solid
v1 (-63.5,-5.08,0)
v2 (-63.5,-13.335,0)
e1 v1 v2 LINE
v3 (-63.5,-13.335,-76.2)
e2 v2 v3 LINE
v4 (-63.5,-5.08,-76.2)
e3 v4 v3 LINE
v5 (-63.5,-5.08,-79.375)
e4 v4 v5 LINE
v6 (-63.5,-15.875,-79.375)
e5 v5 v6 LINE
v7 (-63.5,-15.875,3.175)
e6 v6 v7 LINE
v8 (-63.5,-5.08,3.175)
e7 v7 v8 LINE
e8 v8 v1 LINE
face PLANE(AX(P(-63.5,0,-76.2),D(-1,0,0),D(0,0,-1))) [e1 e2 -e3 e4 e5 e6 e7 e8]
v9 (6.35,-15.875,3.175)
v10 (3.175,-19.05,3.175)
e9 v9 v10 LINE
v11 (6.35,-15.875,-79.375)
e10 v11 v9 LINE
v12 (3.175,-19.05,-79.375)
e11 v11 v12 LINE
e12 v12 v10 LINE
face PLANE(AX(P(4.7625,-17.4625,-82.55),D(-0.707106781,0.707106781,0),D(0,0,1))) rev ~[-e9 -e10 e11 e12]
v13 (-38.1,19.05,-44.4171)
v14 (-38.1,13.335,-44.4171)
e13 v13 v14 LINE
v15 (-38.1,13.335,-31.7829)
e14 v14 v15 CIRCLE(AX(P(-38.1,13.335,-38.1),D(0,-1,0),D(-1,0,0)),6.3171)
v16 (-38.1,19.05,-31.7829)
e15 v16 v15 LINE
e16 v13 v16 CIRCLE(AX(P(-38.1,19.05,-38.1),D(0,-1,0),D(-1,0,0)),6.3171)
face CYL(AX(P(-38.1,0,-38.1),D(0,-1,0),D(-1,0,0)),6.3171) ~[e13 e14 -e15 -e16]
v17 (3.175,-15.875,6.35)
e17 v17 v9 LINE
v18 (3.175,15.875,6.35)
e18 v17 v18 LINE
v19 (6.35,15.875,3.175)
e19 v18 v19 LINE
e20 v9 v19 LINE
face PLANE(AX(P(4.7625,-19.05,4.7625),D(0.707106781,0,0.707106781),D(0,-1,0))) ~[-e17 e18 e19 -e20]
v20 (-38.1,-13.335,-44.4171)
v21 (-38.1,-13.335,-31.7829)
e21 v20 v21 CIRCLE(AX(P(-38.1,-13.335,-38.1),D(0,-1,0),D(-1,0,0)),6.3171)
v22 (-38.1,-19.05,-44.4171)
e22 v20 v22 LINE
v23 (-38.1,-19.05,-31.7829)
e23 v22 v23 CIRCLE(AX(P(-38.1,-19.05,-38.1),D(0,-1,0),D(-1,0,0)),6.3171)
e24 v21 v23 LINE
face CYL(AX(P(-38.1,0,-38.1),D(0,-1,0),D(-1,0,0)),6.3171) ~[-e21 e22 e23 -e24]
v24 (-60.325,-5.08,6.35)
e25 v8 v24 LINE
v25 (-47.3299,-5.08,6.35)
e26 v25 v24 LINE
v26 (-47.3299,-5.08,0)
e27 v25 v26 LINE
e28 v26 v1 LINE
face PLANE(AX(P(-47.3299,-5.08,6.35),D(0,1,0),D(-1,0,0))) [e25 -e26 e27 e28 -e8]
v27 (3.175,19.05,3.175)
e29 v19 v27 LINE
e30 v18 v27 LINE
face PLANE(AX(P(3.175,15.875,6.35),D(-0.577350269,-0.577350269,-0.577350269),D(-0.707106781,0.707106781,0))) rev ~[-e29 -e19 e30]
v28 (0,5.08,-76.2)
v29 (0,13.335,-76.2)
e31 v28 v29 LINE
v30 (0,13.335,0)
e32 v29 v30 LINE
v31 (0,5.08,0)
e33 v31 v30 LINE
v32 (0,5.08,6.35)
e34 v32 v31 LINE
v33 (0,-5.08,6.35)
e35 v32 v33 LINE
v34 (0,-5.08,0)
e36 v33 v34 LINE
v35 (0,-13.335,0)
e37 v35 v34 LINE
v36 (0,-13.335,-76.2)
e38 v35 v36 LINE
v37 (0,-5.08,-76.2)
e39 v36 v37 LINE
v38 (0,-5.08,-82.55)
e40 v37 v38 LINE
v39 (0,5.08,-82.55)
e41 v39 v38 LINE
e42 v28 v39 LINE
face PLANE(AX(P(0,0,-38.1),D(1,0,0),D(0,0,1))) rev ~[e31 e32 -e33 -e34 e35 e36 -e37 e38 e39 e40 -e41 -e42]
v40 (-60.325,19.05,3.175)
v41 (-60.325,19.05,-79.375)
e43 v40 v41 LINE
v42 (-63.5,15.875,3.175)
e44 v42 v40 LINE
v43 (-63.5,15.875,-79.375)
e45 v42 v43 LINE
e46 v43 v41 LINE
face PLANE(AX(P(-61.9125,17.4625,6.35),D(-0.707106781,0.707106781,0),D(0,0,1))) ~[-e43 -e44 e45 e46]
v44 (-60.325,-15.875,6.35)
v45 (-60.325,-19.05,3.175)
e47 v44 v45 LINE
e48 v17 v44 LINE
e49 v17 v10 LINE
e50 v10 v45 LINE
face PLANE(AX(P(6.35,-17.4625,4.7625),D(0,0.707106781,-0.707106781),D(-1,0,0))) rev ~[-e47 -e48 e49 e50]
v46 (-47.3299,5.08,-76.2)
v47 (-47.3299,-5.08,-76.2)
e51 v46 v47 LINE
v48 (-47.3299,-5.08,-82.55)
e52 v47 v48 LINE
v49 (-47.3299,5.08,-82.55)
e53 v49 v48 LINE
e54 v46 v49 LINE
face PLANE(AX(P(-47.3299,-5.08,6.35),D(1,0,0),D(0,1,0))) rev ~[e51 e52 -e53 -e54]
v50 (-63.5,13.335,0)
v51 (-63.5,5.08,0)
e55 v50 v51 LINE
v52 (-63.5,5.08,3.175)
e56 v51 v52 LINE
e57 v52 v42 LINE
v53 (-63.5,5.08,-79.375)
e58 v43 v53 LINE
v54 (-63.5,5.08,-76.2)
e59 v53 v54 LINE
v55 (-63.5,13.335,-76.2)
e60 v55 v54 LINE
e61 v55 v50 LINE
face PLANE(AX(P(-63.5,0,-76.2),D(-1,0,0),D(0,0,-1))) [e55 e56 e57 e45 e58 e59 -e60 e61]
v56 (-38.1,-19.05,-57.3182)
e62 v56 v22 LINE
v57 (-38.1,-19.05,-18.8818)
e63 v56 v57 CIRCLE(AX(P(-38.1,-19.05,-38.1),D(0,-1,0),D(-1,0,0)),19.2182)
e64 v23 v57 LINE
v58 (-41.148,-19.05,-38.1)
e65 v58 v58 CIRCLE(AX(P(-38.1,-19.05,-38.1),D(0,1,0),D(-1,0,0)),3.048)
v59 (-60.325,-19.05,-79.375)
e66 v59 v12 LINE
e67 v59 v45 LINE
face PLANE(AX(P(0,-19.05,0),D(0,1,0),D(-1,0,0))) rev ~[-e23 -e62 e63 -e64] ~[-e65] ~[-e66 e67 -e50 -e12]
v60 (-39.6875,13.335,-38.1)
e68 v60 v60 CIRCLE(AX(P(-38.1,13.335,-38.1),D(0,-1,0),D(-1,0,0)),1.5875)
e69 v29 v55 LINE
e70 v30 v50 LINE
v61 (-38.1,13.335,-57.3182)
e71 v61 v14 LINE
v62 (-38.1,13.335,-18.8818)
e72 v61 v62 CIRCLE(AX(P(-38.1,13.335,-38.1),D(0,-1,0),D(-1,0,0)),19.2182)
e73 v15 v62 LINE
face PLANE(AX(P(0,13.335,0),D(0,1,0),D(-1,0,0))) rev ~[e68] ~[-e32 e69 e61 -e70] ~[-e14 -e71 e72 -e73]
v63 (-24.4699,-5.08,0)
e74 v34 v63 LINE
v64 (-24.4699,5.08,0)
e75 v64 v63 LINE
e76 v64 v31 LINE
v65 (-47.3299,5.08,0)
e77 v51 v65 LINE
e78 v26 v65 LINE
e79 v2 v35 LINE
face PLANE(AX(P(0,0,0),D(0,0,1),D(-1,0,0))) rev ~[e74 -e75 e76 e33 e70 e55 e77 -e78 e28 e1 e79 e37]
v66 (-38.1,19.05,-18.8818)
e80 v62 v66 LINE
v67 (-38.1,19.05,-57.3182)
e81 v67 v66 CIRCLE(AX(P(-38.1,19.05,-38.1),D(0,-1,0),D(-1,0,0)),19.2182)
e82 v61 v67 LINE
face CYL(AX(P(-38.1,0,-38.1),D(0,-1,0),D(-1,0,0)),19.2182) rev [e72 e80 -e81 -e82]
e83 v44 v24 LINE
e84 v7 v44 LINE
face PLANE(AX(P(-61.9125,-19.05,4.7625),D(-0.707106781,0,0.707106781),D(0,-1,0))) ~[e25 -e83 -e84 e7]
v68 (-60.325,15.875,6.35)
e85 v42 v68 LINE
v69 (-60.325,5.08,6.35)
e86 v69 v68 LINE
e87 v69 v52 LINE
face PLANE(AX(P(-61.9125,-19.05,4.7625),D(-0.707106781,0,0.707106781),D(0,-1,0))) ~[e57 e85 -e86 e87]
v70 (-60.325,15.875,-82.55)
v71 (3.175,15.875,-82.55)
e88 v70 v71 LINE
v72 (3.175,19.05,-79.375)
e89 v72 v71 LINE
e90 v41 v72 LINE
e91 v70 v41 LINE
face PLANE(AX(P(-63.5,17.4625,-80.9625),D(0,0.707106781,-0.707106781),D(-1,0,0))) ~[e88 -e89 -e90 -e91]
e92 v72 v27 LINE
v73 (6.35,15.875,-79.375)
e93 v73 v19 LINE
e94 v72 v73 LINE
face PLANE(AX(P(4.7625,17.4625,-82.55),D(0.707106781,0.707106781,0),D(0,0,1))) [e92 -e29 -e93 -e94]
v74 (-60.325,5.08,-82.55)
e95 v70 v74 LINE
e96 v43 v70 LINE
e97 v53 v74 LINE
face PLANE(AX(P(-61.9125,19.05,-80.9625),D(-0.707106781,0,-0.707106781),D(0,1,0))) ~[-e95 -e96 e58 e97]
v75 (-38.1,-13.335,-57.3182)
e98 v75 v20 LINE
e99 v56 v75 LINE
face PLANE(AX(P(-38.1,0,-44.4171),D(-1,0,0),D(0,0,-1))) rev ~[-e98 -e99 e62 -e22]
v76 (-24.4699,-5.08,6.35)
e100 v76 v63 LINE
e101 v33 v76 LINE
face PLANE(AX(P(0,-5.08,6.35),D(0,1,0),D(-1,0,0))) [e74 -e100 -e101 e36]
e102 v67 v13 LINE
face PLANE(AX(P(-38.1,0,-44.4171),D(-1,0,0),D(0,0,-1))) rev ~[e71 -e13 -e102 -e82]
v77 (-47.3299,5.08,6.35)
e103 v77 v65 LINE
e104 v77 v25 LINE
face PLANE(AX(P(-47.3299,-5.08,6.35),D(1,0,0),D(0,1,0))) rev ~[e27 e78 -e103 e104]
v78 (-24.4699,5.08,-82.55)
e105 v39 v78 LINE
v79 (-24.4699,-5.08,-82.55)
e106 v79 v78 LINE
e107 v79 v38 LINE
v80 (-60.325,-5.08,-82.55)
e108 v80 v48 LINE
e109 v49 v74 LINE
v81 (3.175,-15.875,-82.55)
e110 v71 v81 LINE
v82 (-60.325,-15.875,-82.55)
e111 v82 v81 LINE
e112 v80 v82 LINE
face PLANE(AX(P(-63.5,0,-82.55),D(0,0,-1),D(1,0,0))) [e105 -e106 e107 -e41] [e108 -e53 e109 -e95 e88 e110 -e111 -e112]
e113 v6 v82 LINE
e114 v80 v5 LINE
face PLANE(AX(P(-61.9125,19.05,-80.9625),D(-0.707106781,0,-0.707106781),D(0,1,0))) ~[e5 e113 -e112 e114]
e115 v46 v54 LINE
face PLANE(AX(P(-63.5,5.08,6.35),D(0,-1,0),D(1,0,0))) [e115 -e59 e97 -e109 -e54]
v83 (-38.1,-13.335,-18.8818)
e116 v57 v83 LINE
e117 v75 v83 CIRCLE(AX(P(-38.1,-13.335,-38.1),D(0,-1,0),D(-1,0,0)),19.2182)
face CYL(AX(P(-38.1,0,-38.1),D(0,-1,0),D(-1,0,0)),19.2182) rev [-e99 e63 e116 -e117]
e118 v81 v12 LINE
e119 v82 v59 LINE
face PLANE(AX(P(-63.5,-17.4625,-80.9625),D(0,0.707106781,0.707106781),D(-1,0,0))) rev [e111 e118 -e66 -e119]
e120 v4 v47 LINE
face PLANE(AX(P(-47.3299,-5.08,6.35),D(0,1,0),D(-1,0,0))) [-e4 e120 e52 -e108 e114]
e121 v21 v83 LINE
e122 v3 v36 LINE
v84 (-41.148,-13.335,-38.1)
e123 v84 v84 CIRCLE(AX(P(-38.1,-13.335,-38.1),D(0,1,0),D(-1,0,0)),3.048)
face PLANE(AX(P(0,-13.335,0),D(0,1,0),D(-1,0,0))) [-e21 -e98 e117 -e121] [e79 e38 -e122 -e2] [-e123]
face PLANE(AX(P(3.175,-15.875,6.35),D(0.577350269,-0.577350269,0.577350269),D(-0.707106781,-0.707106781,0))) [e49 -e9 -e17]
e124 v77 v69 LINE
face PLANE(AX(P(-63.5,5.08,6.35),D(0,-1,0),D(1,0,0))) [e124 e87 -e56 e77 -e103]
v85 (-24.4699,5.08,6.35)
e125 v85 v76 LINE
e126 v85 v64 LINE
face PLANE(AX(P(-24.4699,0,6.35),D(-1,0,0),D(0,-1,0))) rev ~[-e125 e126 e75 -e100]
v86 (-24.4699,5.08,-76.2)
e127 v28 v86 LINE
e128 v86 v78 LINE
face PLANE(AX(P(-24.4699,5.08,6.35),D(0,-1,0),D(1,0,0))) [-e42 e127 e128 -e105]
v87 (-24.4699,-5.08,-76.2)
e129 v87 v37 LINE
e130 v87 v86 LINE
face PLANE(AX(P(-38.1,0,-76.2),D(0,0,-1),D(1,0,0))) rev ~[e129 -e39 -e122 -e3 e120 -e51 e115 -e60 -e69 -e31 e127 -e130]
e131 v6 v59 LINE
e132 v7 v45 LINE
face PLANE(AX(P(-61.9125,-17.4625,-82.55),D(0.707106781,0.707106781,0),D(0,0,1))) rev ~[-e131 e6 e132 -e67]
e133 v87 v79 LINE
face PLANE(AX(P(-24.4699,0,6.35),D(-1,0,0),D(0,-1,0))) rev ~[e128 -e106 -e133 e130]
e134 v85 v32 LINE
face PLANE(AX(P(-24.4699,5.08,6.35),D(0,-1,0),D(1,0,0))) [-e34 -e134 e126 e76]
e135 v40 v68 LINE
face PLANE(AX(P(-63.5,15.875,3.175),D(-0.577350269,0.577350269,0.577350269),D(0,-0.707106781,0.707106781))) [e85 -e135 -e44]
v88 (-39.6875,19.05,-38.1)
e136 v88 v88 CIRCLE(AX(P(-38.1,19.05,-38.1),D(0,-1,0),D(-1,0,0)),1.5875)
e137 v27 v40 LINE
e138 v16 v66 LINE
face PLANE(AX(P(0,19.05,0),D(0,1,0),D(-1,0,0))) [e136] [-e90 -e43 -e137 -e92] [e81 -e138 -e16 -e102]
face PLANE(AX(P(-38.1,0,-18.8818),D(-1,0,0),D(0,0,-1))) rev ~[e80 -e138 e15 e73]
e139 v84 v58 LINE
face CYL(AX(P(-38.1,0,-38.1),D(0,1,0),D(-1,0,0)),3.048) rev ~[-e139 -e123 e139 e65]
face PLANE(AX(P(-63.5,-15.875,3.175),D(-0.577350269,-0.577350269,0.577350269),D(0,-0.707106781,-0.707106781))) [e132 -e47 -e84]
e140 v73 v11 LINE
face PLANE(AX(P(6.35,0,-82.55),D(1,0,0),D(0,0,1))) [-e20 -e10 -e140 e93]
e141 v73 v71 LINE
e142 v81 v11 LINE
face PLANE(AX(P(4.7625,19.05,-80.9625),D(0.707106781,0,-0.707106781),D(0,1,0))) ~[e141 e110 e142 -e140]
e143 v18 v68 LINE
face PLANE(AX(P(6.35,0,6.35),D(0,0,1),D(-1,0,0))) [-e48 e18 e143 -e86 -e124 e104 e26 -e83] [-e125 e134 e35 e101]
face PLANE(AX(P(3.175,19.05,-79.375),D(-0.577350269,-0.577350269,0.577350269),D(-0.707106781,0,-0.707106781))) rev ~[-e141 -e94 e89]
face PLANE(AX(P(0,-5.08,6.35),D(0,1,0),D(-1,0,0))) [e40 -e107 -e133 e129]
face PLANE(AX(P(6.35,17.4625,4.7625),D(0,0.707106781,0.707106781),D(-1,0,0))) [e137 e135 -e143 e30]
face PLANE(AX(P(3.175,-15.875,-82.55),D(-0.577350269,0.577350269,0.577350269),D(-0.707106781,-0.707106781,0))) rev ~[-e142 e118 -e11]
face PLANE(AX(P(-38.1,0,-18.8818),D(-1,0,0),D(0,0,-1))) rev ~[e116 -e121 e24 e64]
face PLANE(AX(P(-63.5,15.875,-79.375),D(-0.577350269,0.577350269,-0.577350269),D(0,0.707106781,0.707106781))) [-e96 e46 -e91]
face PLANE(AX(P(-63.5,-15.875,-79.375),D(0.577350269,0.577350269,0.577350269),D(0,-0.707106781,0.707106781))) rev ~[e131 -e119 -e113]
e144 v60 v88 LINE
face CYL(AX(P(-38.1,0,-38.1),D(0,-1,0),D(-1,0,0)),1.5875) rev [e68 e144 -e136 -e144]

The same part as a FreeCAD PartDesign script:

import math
import FreeCAD as App
import Part
import Sketcher

V = App.Vector
Q = App.Units.Quantity


def edges_at(feature, points):
    """Names of the edges that pass closest to the given points."""
    edges = feature.Shape.Edges
    near = lambda p: min(range(len(edges)), key=lambda i: edges[i].distToShape(Part.Vertex(*p))[0])
    return sorted({f"Edge{near(p) + 1}" for p in points})

doc = App.newDocument("Part")
params = doc.addObject("Spreadsheet::Sheet", "Params")
for row, (alias, value) in enumerate([
    ("sketch1_height", "3.5 in"),
    ("sketch1_width", "2.75 in"),
    ("pad1_length", "1.5 in"),
    ("sketch2_height", "3 in"),
    ("sketch2_width", "2.5 in"),
    ("pocket1_length", "1.05 in"),
    ("sketch3_diameter", "0.125 in"),
    ("pocket2_length", "1.05 in"),
    ("sketch4_diameter", "0.24 in"),
    ("pocket3_length", "1.05 in"),
    ("pocket4_length", "3 in"),
    ("chamfer_size", "0.125 in"),
    ("sketch6_height", "0.4 in"),
    ("pocket5_length", "5 in"),
], start=1):
    params.set(f"A{row}", alias)
    params.set(f"B{row}", "=" + value)
    params.setAlias(f"B{row}", alias)

body = doc.addObject("PartDesign::Body", "Body")

sketch1 = body.newObject("Sketcher::SketchObject", "Sketch")
sketch1.AttachmentSupport = (doc.getObject("XZ_Plane"), [""])
sketch1.MapMode = "FlatFace"
sketch1.addGeometry(Part.LineSegment(V(-64, -83, 0), V(-64, 6, 0)), False)
sketch1.addGeometry(Part.LineSegment(V(-64, 6, 0), V(6, 6, 0)), False)
sketch1.addGeometry(Part.LineSegment(V(6, 6, 0), V(6, -83, 0)), False)
sketch1.addGeometry(Part.LineSegment(V(6, -83, 0), V(-64, -83, 0)), False)
sketch1.addConstraint(Sketcher.Constraint("Coincident", 0, 2, 1, 1))
sketch1.addConstraint(Sketcher.Constraint("Coincident", 1, 2, 2, 1))
sketch1.addConstraint(Sketcher.Constraint("Coincident", 2, 2, 3, 1))
sketch1.addConstraint(Sketcher.Constraint("Coincident", 3, 2, 0, 1))
sketch1.addConstraint(Sketcher.Constraint("Vertical", 0))
sketch1.addConstraint(Sketcher.Constraint("Horizontal", 1))
sketch1.addConstraint(Sketcher.Constraint("Vertical", 2))
sketch1.addConstraint(Sketcher.Constraint("Horizontal", 3))
sketch1.addConstraint(Sketcher.Constraint("DistanceY", -1, 1, 0, 2, Q("0.25 in")))
sketch1.addConstraint(Sketcher.Constraint("DistanceX", -1, 1, 1, 2, Q("0.25 in")))
sketch1.addConstraint(Sketcher.Constraint("DistanceY", 0, 1, 0, 2, Q("3.5 in")))
sketch1.addConstraint(Sketcher.Constraint("DistanceX", 1, 1, 1, 2, Q("2.75 in")))
sketch1.setExpression("Constraints[10]", "Params.sketch1_height")
sketch1.setExpression("Constraints[11]", "Params.sketch1_width")
pad1 = body.newObject("PartDesign::Pad", "Pad")
pad1.Profile = sketch1
pad1.setExpression("Length", "Params.pad1_length")
pad1.Midplane = True

sketch2 = body.newObject("Sketcher::SketchObject", "Sketch001")
sketch2.AttachmentSupport = (doc.getObject("XZ_Plane"), [""])
sketch2.MapMode = "FlatFace"
sketch2.addGeometry(Part.LineSegment(V(0, 0, 0), V(0, -76, 0)), False)
sketch2.addGeometry(Part.LineSegment(V(0, -76, 0), V(-64, -76, 0)), False)
sketch2.addGeometry(Part.LineSegment(V(-64, -76, 0), V(-64, 0, 0)), False)
sketch2.addGeometry(Part.LineSegment(V(-64, 0, 0), V(0, 0, 0)), False)
sketch2.addConstraint(Sketcher.Constraint("Coincident", 0, 2, 1, 1))
sketch2.addConstraint(Sketcher.Constraint("Coincident", 1, 2, 2, 1))
sketch2.addConstraint(Sketcher.Constraint("Coincident", 2, 2, 3, 1))
sketch2.addConstraint(Sketcher.Constraint("Coincident", 3, 2, 0, 1))
sketch2.addConstraint(Sketcher.Constraint("Vertical", 0))
sketch2.addConstraint(Sketcher.Constraint("Horizontal", 1))
sketch2.addConstraint(Sketcher.Constraint("Vertical", 2))
sketch2.addConstraint(Sketcher.Constraint("Horizontal", 3))
sketch2.addConstraint(Sketcher.Constraint("Coincident", 3, 2, -1, 1))
sketch2.addConstraint(Sketcher.Constraint("DistanceY", 0, 2, 0, 1, Q("3 in")))
sketch2.addConstraint(Sketcher.Constraint("DistanceX", 1, 2, 1, 1, Q("2.5 in")))
sketch2.setExpression("Constraints[9]", "Params.sketch2_height")
sketch2.setExpression("Constraints[10]", "Params.sketch2_width")
pocket1 = body.newObject("PartDesign::Pocket", "Pocket")
pocket1.Profile = sketch2
pocket1.setExpression("Length", "Params.pocket1_length")
pocket1.Midplane = True

sketch3 = body.newObject("Sketcher::SketchObject", "Sketch002")
sketch3.AttachmentSupport = (doc.getObject("XZ_Plane"), [""])
sketch3.MapMode = "FlatFace"
sketch3.addGeometry(Part.Circle(V(-38.1, -38.1, 0), V(0, 0, 1), 1.6), False)
sketch3.addConstraint(Sketcher.Constraint("Diameter", 0, Q("0.125 in")))
sketch3.addConstraint(Sketcher.Constraint("DistanceX", 0, 3, -1, 1, Q("1.5 in")))
sketch3.addConstraint(Sketcher.Constraint("DistanceY", 0, 3, -1, 1, Q("1.5 in")))
sketch3.setExpression("Constraints[0]", "Params.sketch3_diameter")
pocket2 = body.newObject("PartDesign::Pocket", "Pocket001")
pocket2.Profile = sketch3
pocket2.setExpression("Length", "Params.pocket2_length")

sketch4 = body.newObject("Sketcher::SketchObject", "Sketch003")
sketch4.AttachmentSupport = (doc.getObject("XZ_Plane"), [""])
sketch4.MapMode = "FlatFace"
sketch4.addGeometry(Part.Circle(V(-38.1, -38.1, 0), V(0, 0, 1), 3), False)
sketch4.addConstraint(Sketcher.Constraint("Diameter", 0, Q("0.24 in")))
sketch4.addConstraint(Sketcher.Constraint("DistanceX", 0, 3, -1, 1, Q("1.5 in")))
sketch4.addConstraint(Sketcher.Constraint("DistanceY", 0, 3, -1, 1, Q("1.5 in")))
sketch4.setExpression("Constraints[0]", "Params.sketch4_diameter")
pocket3 = body.newObject("PartDesign::Pocket", "Pocket002")
pocket3.Profile = sketch4
pocket3.setExpression("Length", "Params.pocket3_length")
pocket3.Reversed = True

sketch5 = body.newObject("Sketcher::SketchObject", "Sketch004")
sketch5.AttachmentSupport = (doc.getObject("XZ_Plane"), [""])
sketch5.MapMode = "FlatFace"
sketch5.addGeometry(Part.LineSegment(V(-38, -32, 0), V(-38, -19, 0)), False)
sketch5.addGeometry(Part.ArcOfCircle(Part.Circle(V(-38, -38, 0), V(0, 0, 1), 19), math.radians(-90), math.radians(90)), False)
sketch5.addGeometry(Part.LineSegment(V(-38, -57, 0), V(-38, -44, 0)), False)
sketch5.addGeometry(Part.ArcOfCircle(Part.Circle(V(-38, -38, 0), V(0, 0, 1), 6), math.radians(-90), math.radians(90)), False)
sketch5.addConstraint(Sketcher.Constraint("Coincident", 0, 2, 1, 2))
sketch5.addConstraint(Sketcher.Constraint("Coincident", 1, 1, 2, 1))
sketch5.addConstraint(Sketcher.Constraint("Coincident", 2, 2, 3, 1))
sketch5.addConstraint(Sketcher.Constraint("Coincident", 3, 2, 0, 1))
sketch5.addConstraint(Sketcher.Constraint("Vertical", 0))
sketch5.addConstraint(Sketcher.Constraint("Vertical", 2))
sketch5.addConstraint(Sketcher.Constraint("Coincident", 3, 3, 1, 3))
sketch5.addConstraint(Sketcher.Constraint("Vertical", 3, 3, 0, 2))
sketch5.addConstraint(Sketcher.Constraint("Vertical", 0, 2, 1, 1))
sketch5.addConstraint(Sketcher.Constraint("DistanceX", 1, 3, -1, 1, Q("1.5 in")))
sketch5.addConstraint(Sketcher.Constraint("DistanceY", 1, 3, -1, 1, Q("1.5 in")))
sketch5.addConstraint(Sketcher.Constraint("Radius", 3, Q("0.2487 in")))
sketch5.addConstraint(Sketcher.Constraint("Radius", 1, Q("19.2182 mm")))
pocket4 = body.newObject("PartDesign::Pocket", "Pocket003")
pocket4.Profile = sketch5
pocket4.setExpression("Length", "Params.pocket4_length")
pocket4.Midplane = True
doc.recompute()

chamfer = body.newObject("PartDesign::Chamfer", "Chamfer")
chamfer.Base = (pocket4, edges_at(pocket4, [
    (6.35, -19.05, -38.1),
    (6.35, 0, -82.55),
    (6.35, 19.05, -38.1),
    (6.35, 0, 6.35),
    (-28.575, -19.05, 6.35),
    (-28.575, -19.05, -82.55),
    (-28.575, 19.05, 6.35),
    (-28.575, 19.05, -82.55),
    (-63.5, 0, -82.55),
    (-63.5, 19.05, -38.1),
    (-63.5, 0, 6.35),
    (-63.5, -19.05, -38.1),
]))
chamfer.setExpression("Size", "Params.chamfer_size")

sketch6 = body.newObject("Sketcher::SketchObject", "Sketch005")
sketch6.AttachmentSupport = (doc.getObject("XY_Plane"), [""])
sketch6.MapMode = "FlatFace"
sketch6.AttachmentOffset = App.Placement(V(0, 0, 0.25 * 25.4), App.Rotation())
sketch6.addGeometry(Part.LineSegment(V(0, -5, 0), V(0, 5, 0)), False)
sketch6.addGeometry(Part.LineSegment(V(0, 5, 0), V(-24, 5, 0)), False)
sketch6.addGeometry(Part.LineSegment(V(-24, 5, 0), V(-24, -5, 0)), False)
sketch6.addGeometry(Part.LineSegment(V(-24, -5, 0), V(0, -5, 0)), False)
sketch6.addGeometry(Part.LineSegment(V(-47, -5, 0), V(-47, 5, 0)), False)
sketch6.addGeometry(Part.LineSegment(V(-47, 5, 0), V(-75, 5, 0)), False)
sketch6.addGeometry(Part.LineSegment(V(-75, 5, 0), V(-75, -5, 0)), False)
sketch6.addGeometry(Part.LineSegment(V(-75, -5, 0), V(-47, -5, 0)), False)
sketch6.addConstraint(Sketcher.Constraint("Coincident", 0, 2, 1, 1))
sketch6.addConstraint(Sketcher.Constraint("Coincident", 1, 2, 2, 1))
sketch6.addConstraint(Sketcher.Constraint("Coincident", 2, 2, 3, 1))
sketch6.addConstraint(Sketcher.Constraint("Coincident", 3, 2, 0, 1))
sketch6.addConstraint(Sketcher.Constraint("Coincident", 4, 2, 5, 1))
sketch6.addConstraint(Sketcher.Constraint("Coincident", 5, 2, 6, 1))
sketch6.addConstraint(Sketcher.Constraint("Coincident", 6, 2, 7, 1))
sketch6.addConstraint(Sketcher.Constraint("Coincident", 7, 2, 4, 1))
sketch6.addConstraint(Sketcher.Constraint("Vertical", 0))
sketch6.addConstraint(Sketcher.Constraint("Horizontal", 1))
sketch6.addConstraint(Sketcher.Constraint("Vertical", 2))
sketch6.addConstraint(Sketcher.Constraint("Horizontal", 3))
sketch6.addConstraint(Sketcher.Constraint("Vertical", 4))
sketch6.addConstraint(Sketcher.Constraint("Horizontal", 5))
sketch6.addConstraint(Sketcher.Constraint("Vertical", 6))
sketch6.addConstraint(Sketcher.Constraint("Horizontal", 7))
sketch6.addConstraint(Sketcher.Constraint("Symmetric", 0, 2, 3, 2, -1, 1))
sketch6.addConstraint(Sketcher.Constraint("Horizontal", 1, 2, 4, 2))
sketch6.addConstraint(Sketcher.Constraint("Horizontal", 3, 2, 6, 2))
sketch6.addConstraint(Sketcher.Constraint("DistanceY", 0, 1, 0, 2, Q("0.4 in")))
sketch6.addConstraint(Sketcher.Constraint("DistanceX", 4, 2, 1, 2, Q("0.9 in")))
sketch6.addConstraint(Sketcher.Constraint("DistanceX", 1, 2, 1, 1, Q("24.47 mm")))
sketch6.addConstraint(Sketcher.Constraint("DistanceX", 5, 2, 5, 1, Q("27.3415 mm")))
sketch6.setExpression("Constraints[19]", "Params.sketch6_height")
pocket5 = body.newObject("PartDesign::Pocket", "Pocket004")
pocket5.Profile = sketch6
pocket5.setExpression("Length", "Params.pocket5_length")

doc.recompute()
